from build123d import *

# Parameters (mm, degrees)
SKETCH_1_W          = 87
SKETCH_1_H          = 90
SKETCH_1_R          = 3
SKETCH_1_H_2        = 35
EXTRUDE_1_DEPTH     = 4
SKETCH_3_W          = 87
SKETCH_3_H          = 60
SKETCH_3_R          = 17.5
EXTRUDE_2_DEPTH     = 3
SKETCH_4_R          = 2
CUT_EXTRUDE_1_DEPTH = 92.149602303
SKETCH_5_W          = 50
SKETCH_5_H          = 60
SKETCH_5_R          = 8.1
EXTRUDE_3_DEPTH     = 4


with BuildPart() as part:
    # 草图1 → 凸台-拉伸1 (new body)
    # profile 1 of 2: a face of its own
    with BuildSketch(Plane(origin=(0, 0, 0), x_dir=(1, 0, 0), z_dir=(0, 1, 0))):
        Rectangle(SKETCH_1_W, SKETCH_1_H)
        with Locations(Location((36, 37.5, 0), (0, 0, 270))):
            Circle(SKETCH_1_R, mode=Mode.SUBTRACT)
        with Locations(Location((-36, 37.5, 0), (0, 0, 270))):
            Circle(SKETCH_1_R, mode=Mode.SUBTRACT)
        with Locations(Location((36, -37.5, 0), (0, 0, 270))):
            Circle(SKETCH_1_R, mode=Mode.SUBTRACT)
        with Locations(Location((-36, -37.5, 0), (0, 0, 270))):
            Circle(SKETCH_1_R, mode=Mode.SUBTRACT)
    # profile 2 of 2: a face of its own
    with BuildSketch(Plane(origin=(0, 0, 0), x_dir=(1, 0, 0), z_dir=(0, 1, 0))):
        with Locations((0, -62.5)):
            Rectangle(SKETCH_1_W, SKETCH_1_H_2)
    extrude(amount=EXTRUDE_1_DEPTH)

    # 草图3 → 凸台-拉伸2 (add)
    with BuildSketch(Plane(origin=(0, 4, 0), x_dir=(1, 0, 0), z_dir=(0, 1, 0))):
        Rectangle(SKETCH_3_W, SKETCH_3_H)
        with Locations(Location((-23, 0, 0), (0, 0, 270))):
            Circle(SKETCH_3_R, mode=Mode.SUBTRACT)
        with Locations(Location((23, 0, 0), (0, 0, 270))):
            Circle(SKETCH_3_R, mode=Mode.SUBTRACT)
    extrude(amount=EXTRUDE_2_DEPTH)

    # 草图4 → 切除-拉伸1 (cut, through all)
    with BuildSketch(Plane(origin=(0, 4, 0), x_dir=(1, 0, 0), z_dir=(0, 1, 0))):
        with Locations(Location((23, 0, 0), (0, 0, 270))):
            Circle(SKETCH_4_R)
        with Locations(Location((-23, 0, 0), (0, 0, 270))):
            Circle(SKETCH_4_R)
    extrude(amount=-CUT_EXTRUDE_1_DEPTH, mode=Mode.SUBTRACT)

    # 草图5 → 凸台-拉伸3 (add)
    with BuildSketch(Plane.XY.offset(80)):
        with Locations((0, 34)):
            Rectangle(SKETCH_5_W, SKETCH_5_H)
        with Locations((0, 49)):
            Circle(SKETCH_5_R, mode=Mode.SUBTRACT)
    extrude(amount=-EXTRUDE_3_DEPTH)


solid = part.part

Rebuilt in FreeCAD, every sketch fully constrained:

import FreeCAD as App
import Part
import Sketcher
Q = App.Units.Quantity

doc = App.newDocument("Part")
body = doc.addObject("PartDesign::Body", "Body")

sketch1 = body.newObject("Sketcher::SketchObject", "Sketch")
sketch1.AttachmentSupport = (doc.getObject("XZ_Plane"), [""])
sketch1.MapMode = "FlatFace"
sketch1.addGeometry(Part.LineSegment(App.Vector(-43.5, -45, 0), App.Vector(-43.5, 80, 0)), False)
sketch1.addGeometry(Part.LineSegment(App.Vector(-43.5, 80, 0), App.Vector(43.5, 80, 0)), False)
sketch1.addGeometry(Part.LineSegment(App.Vector(43.5, 80, 0), App.Vector(43.5, -45, 0)), False)
sketch1.addGeometry(Part.LineSegment(App.Vector(43.5, -45, 0), App.Vector(-43.5, -45, 0)), False)
sketch1.addGeometry(Part.Circle(App.Vector(-36, 37.5, 0), App.Vector(0, 0, 1), 3), False)
sketch1.addGeometry(Part.Circle(App.Vector(36, 37.5, 0), App.Vector(0, 0, 1), 3), False)
sketch1.addGeometry(Part.Circle(App.Vector(-36, -37.5, 0), App.Vector(0, 0, 1), 3), False)
sketch1.addGeometry(Part.Circle(App.Vector(36, -37.5, 0), App.Vector(0, 0, 1), 3), False)
sketch1.addConstraint(Sketcher.Constraint("Coincident", 0, 2, 1, 1))
sketch1.addConstraint(Sketcher.Constraint("Coincident", 1, 2, 2, 1))
sketch1.addConstraint(Sketcher.Constraint("Coincident", 2, 2, 3, 1))
sketch1.addConstraint(Sketcher.Constraint("Coincident", 3, 2, 0, 1))
sketch1.addConstraint(Sketcher.Constraint("Vertical", 0))
sketch1.addConstraint(Sketcher.Constraint("Horizontal", 1))
sketch1.addConstraint(Sketcher.Constraint("Vertical", 2))
sketch1.addConstraint(Sketcher.Constraint("Horizontal", 3))
sketch1.addConstraint(Sketcher.Constraint("Equal", 4, 5))
sketch1.addConstraint(Sketcher.Constraint("Equal", 5, 6))
sketch1.addConstraint(Sketcher.Constraint("Equal", 6, 7))
sketch1.addConstraint(Sketcher.Constraint("Symmetric", 5, 3, 6, 3, -1, 1))
sketch1.addConstraint(Sketcher.Constraint("Symmetric", 4, 3, 7, 3, -1, 1))
sketch1.addConstraint(Sketcher.Constraint("Symmetric", 4, 3, 5, 3, -2))
sketch1.addConstraint(Sketcher.Constraint("Diameter", 4, Q("6 mm")))
sketch1.addConstraint(Sketcher.Constraint("DistanceX", 1, 1, 1, 2, Q("87 mm")))
sketch1.addConstraint(Sketcher.Constraint("DistanceY", 0, 1, 0, 2, Q("125 mm")))
sketch1.addConstraint(Sketcher.Constraint("DistanceX", 4, 3, -1, 1, Q("36 mm")))
sketch1.addConstraint(Sketcher.Constraint("DistanceY", -1, 1, 0, 2, Q("80 mm")))
sketch1.addConstraint(Sketcher.Constraint("DistanceY", 6, 3, 4, 3, Q("75 mm")))
sketch1.addConstraint(Sketcher.Constraint("DistanceX", 0, 2, -1, 1, Q("43.5 mm")))
pad1 = body.newObject("PartDesign::Pad", "Pad")
pad1.Profile = sketch1
pad1.Length = 4
pad1.Reversed = True

sketch2 = body.newObject("Sketcher::SketchObject", "Sketch001")
sketch2.AttachmentSupport = (doc.getObject("XZ_Plane"), [""])
sketch2.MapMode = "FlatFace"
sketch2.AttachmentOffset = App.Placement(App.Vector(0, 0, -4), App.Rotation())
sketch2.addGeometry(Part.LineSegment(App.Vector(-44, -30, 0), App.Vector(-44, 30, 0)), False)
sketch2.addGeometry(Part.LineSegment(App.Vector(-44, 30, 0), App.Vector(44, 30, 0)), False)
sketch2.addGeometry(Part.LineSegment(App.Vector(44, 30, 0), App.Vector(44, -30, 0)), False)
sketch2.addGeometry(Part.LineSegment(App.Vector(44, -30, 0), App.Vector(-44, -30, 0)), False)
sketch2.addGeometry(Part.Circle(App.Vector(-23, 0, 0), App.Vector(0, 0, 1), 18), False)
sketch2.addGeometry(Part.Circle(App.Vector(23, 0, 0), App.Vector(0, 0, 1), 18), False)
sketch2.addConstraint(Sketcher.Constraint("Coincident", 0, 2, 1, 1))
sketch2.addConstraint(Sketcher.Constraint("Coincident", 1, 2, 2, 1))
sketch2.addConstraint(Sketcher.Constraint("Coincident", 2, 2, 3, 1))
sketch2.addConstraint(Sketcher.Constraint("Coincident", 3, 2, 0, 1))
sketch2.addConstraint(Sketcher.Constraint("Vertical", 0))
sketch2.addConstraint(Sketcher.Constraint("Horizontal", 1))
sketch2.addConstraint(Sketcher.Constraint("Vertical", 2))
sketch2.addConstraint(Sketcher.Constraint("Horizontal", 3))
sketch2.addConstraint(Sketcher.Constraint("Equal", 4, 5))
sketch2.addConstraint(Sketcher.Constraint("Symmetric", 4, 3, 5, 3, -1, 1))
sketch2.addConstraint(Sketcher.Constraint("Symmetric", 0, 2, 2, 2, -1, 1))
sketch2.addConstraint(Sketcher.Constraint("PointOnObject", 4, 3, -1))
sketch2.addConstraint(Sketcher.Constraint("Diameter", 4, Q("35 mm")))
sketch2.addConstraint(Sketcher.Constraint("DistanceX", 1, 1, 1, 2, Q("87 mm")))
sketch2.addConstraint(Sketcher.Constraint("DistanceY", 0, 1, 0, 2, Q("60 mm")))
sketch2.addConstraint(Sketcher.Constraint("DistanceX", 4, 3, -1, 1, Q("23 mm")))
pad2 = body.newObject("PartDesign::Pad", "Pad001")
pad2.Profile = sketch2
pad2.Length = 3
pad2.Reversed = True

sketch3 = body.newObject("Sketcher::SketchObject", "Sketch002")
sketch3.AttachmentSupport = (doc.getObject("XZ_Plane"), [""])
sketch3.MapMode = "FlatFace"
sketch3.AttachmentOffset = App.Placement(App.Vector(0, 0, -4), App.Rotation())
sketch3.addGeometry(Part.Circle(App.Vector(23, 0, 0), App.Vector(0, 0, 1), 2), False)
sketch3.addGeometry(Part.Circle(App.Vector(-23, 0, 0), App.Vector(0, 0, 1), 2), False)
sketch3.addConstraint(Sketcher.Constraint("Equal", 0, 1))
sketch3.addConstraint(Sketcher.Constraint("Symmetric", 0, 3, 1, 3, -1, 1))
sketch3.addConstraint(Sketcher.Constraint("PointOnObject", 0, 3, -1))
sketch3.addConstraint(Sketcher.Constraint("Diameter", 0, Q("4 mm")))
sketch3.addConstraint(Sketcher.Constraint("DistanceX", -1, 1, 0, 3, Q("23 mm")))
pocket1 = body.newObject("PartDesign::Pocket", "Pocket")
pocket1.Profile = sketch3
pocket1.Type = "ThroughAll"
pocket1.Reversed = True

sketch4 = body.newObject("Sketcher::SketchObject", "Sketch003")
sketch4.AttachmentSupport = (doc.getObject("XY_Plane"), [""])
sketch4.MapMode = "FlatFace"
sketch4.AttachmentOffset = App.Placement(App.Vector(0, 0, 80), App.Rotation())
sketch4.addGeometry(Part.LineSegment(App.Vector(-25, 64, 0), App.Vector(-25, 4, 0)), False)
sketch4.addGeometry(Part.LineSegment(App.Vector(-25, 4, 0), App.Vector(25, 4, 0)), False)
sketch4.addGeometry(Part.LineSegment(App.Vector(25, 4, 0), App.Vector(25, 64, 0)), False)
sketch4.addGeometry(Part.LineSegment(App.Vector(25, 64, 0), App.Vector(-25, 64, 0)), False)
sketch4.addGeometry(Part.Circle(App.Vector(0, 49, 0), App.Vector(0, 0, 1), 8), False)
sketch4.addConstraint(Sketcher.Constraint("Coincident", 0, 2, 1, 1))
sketch4.addConstraint(Sketcher.Constraint("Coincident", 1, 2, 2, 1))
sketch4.addConstraint(Sketcher.Constraint("Coincident", 2, 2, 3, 1))
sketch4.addConstraint(Sketcher.Constraint("Coincident", 3, 2, 0, 1))
sketch4.addConstraint(Sketcher.Constraint("Vertical", 0))
sketch4.addConstraint(Sketcher.Constraint("Horizontal", 1))
sketch4.addConstraint(Sketcher.Constraint("Vertical", 2))
sketch4.addConstraint(Sketcher.Constraint("Horizontal", 3))
sketch4.addConstraint(Sketcher.Constraint("PointOnObject", 4, 3, -2))
sketch4.addConstraint(Sketcher.Constraint("Diameter", 4, Q("16.2 mm")))
sketch4.addConstraint(Sketcher.Constraint("DistanceX", 1, 1, 1, 2, Q("50 mm")))
sketch4.addConstraint(Sketcher.Constraint("DistanceY", 0, 2, 0, 1, Q("60 mm")))
sketch4.addConstraint(Sketcher.Constraint("DistanceY", -1, 1, 4, 3, Q("49 mm")))
sketch4.addConstraint(Sketcher.Constraint("DistanceX", 0, 2, -1, 1, Q("25 mm")))
sketch4.addConstraint(Sketcher.Constraint("DistanceY", -1, 1, 0, 2, Q("4 mm")))
pad3 = body.newObject("PartDesign::Pad", "Pad002")
pad3.Profile = sketch4
pad3.Length = 4
pad3.Reversed = True

doc.recompute()
